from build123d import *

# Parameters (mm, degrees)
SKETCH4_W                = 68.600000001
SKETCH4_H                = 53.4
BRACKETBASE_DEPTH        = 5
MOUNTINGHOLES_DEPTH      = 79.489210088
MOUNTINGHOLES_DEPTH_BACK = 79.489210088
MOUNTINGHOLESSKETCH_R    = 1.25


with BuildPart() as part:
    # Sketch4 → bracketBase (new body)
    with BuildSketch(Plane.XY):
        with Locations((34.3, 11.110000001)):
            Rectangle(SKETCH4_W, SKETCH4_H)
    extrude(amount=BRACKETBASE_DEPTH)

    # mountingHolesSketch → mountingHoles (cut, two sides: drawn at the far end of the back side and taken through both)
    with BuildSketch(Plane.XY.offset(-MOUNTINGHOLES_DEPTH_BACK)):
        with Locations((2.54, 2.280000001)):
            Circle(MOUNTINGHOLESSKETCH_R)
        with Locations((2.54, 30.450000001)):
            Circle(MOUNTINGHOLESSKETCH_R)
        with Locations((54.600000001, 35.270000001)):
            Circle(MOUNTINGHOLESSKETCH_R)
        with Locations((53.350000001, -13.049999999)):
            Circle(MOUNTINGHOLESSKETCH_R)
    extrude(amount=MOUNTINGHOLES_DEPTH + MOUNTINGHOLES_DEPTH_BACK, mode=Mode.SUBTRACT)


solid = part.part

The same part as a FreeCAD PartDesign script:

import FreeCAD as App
import Part
import Sketcher


def add_polygon(sketch, points):
    """Adds a closed chain of lines whose ends are joined by coincident constraints."""
    first, n = sketch.GeometryCount, len(points)
    for a, b in zip(points, points[1:] + points[:1]):
        sketch.addGeometry(Part.LineSegment(App.Vector(*a, 0), App.Vector(*b, 0)), False)
    for i in range(n):
        sketch.addConstraint(Sketcher.Constraint("Coincident", first + i, 2, first + (i + 1) % n, 1))

doc = App.newDocument("Part")
body = doc.addObject("PartDesign::Body", "Body")

# Sketch on XY plane
sketch1 = doc.addObject("Sketcher::SketchObject", "Sketch")
body.addObject(sketch1)
sketch1.AttachmentSupport = (doc.XY_Plane, [""])
sketch1.MapMode = "FlatFace"
add_polygon(sketch1, [(0, 38), (0, -16), (69, -16), (69, 38)])  # lines 0-3
sketch1.addConstraint(Sketcher.Constraint("Vertical", 0))
sketch1.addConstraint(Sketcher.Constraint("Horizontal", 1))
sketch1.addConstraint(Sketcher.Constraint("Vertical", 2))
sketch1.addConstraint(Sketcher.Constraint("Horizontal", 3))
sketch1.addConstraint(Sketcher.Constraint("PointOnObject", 0, 2, -2))
sketch1.addConstraint(Sketcher.Constraint("DistanceX", 1, 1, 1, 2, 68.6))
sketch1.addConstraint(Sketcher.Constraint("DistanceY", 0, 2, 0, 1, 53.4))
sketch1.addConstraint(Sketcher.Constraint("DistanceY", 0, 2, -1, 1, 15.59))
pad1 = doc.addObject("PartDesign::Pad", "Pad")
body.addObject(pad1)
pad1.Profile = sketch1
pad1.Length = 5

# Sketch on XY plane
sketch2 = doc.addObject("Sketcher::SketchObject", "Sketch001")
body.addObject(sketch2)
sketch2.AttachmentSupport = (doc.XY_Plane, [""])
sketch2.MapMode = "FlatFace"
sketch2.addGeometry(Part.Circle(App.Vector(2.5, 2.3, 0), App.Vector(0, 0, 1), 1.2), False)
sketch2.addGeometry(Part.Circle(App.Vector(2.5, 30.5, 0), App.Vector(0, 0, 1), 1.2), False)
sketch2.addGeometry(Part.Circle(App.Vector(54.6, 35.3, 0), App.Vector(0, 0, 1), 1.2), False)
sketch2.addGeometry(Part.Circle(App.Vector(53.4, -13, 0), App.Vector(0, 0, 1), 1.2), False)
sketch2.addConstraint(Sketcher.Constraint("Equal", 0, 1))
sketch2.addConstraint(Sketcher.Constraint("Equal", 1, 2))
sketch2.addConstraint(Sketcher.Constraint("Equal", 2, 3))
sketch2.addConstraint(Sketcher.Constraint("Vertical", 0, 3, 1, 3))
sketch2.addConstraint(Sketcher.Constraint("Diameter", 0, 2.5))
sketch2.addConstraint(Sketcher.Constraint("DistanceX", -1, 1, 2, 3, 54.6))
sketch2.addConstraint(Sketcher.Constraint("DistanceY", 3, 3, 1, 3, 43.5))
sketch2.addConstraint(Sketcher.Constraint("DistanceX", -1, 1, 0, 3, 2.54))
sketch2.addConstraint(Sketcher.Constraint("DistanceY", -1, 1, 0, 3, 2.28))
sketch2.addConstraint(Sketcher.Constraint("DistanceY", -1, 1, 1, 3, 30.45))
sketch2.addConstraint(Sketcher.Constraint("DistanceY", -1, 1, 2, 3, 35.27))
sketch2.addConstraint(Sketcher.Constraint("DistanceX", -1, 1, 3, 3, 53.35))
pocket1 = doc.addObject("PartDesign::Pocket", "Pocket")
body.addObject(pocket1)
pocket1.Profile = sketch2
pocket1.Type = "ThroughAll"
pocket1.Midplane = True

doc.recompute()
